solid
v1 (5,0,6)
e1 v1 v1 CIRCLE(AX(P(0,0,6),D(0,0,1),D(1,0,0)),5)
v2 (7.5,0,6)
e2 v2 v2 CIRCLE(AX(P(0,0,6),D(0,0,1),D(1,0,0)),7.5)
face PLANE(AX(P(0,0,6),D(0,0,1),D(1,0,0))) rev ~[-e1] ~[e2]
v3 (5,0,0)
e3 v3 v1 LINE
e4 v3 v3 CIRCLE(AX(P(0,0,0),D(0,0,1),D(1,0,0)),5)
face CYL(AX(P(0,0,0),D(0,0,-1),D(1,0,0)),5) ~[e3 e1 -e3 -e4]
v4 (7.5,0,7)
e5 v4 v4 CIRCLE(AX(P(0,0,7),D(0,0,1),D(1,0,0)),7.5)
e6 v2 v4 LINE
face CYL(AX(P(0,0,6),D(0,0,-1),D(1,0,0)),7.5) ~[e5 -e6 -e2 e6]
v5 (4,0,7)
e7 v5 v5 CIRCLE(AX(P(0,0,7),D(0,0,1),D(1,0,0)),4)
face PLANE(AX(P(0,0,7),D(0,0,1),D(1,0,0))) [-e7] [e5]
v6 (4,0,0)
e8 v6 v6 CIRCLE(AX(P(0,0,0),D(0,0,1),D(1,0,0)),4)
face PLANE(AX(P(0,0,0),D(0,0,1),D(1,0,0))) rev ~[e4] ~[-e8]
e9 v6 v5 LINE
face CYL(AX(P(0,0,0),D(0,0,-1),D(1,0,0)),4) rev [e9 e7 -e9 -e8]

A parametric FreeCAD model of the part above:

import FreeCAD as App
import Part
import Sketcher
Q = App.Units.Quantity

doc = App.newDocument("Part")
body = doc.addObject("PartDesign::Body", "Body")

# Sketch on XY plane
sketch1 = doc.addObject("Sketcher::SketchObject", "Sketch")
body.addObject(sketch1)
sketch1.AttachmentSupport = (doc.XY_Plane, [""])
sketch1.MapMode = "FlatFace"
sketch1.addGeometry([
    Part.Circle(App.Vector(0, 0, 0), App.Vector(0, 0, 1), 5),
    Part.Circle(App.Vector(0, 0, 0), App.Vector(0, 0, 1), 4),
], False)
sketch1.addConstraint([
    Sketcher.Constraint("Coincident", 0, 3, -1, 1),
    Sketcher.Constraint("Coincident", 1, 3, -1, 1),
    Sketcher.Constraint("Diameter", 0, Q("10 mm")),
    Sketcher.Constraint("Diameter", 1, Q("8 mm")),
])
pad1 = doc.addObject("PartDesign::Pad", "Pad")
body.addObject(pad1)
pad1.Profile = sketch1
pad1.Length = 6

# Sketch on XY plane
sketch2 = doc.addObject("Sketcher::SketchObject", "Sketch001")
body.addObject(sketch2)
sketch2.AttachmentSupport = (doc.XY_Plane, [""])
sketch2.MapMode = "FlatFace"
sketch2.AttachmentOffset = App.Placement(App.Vector(0, 0, 6), App.Rotation())
sketch2.addGeometry([
    Part.Circle(App.Vector(0, 0, 0), App.Vector(0, 0, 1), 7.5),
    Part.Circle(App.Vector(0, 0, 0), App.Vector(0, 0, 1), 4),
], False)
sketch2.addConstraint([
    Sketcher.Constraint("Coincident", 0, 3, -1, 1),
    Sketcher.Constraint("Coincident", 1, 3, -1, 1),
    Sketcher.Constraint("Diameter", 0, Q("15 mm")),
    Sketcher.Constraint("Diameter", 1, Q("8 mm")),
])
pad2 = doc.addObject("PartDesign::Pad", "Pad001")
body.addObject(pad2)
pad2.Profile = sketch2
pad2.Length = 1

doc.recompute()
